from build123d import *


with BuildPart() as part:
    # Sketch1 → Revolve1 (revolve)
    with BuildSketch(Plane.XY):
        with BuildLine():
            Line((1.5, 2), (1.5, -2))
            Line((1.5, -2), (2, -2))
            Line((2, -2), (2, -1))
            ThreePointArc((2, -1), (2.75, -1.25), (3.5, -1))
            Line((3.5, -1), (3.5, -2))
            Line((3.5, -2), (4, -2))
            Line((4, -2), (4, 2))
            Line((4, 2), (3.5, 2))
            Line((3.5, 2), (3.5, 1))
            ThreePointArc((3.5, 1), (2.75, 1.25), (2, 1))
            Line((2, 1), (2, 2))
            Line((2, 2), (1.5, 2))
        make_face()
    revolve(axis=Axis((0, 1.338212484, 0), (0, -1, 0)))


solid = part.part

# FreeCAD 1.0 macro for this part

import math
import FreeCAD as App
import Part
import Sketcher

V = App.Vector
Q = App.Units.Quantity

doc = App.newDocument("Part")
params = doc.addObject("Spreadsheet::Sheet", "Params")
for row, (alias, value) in enumerate([
    ("sketch1_height", "4 mm"),
    ("sketch1_height2", "1 mm"),
    ("sketch1_radius", "1.25 mm"),
    ("sketch1_width", "0.5 mm"),
    ("revolution_angle", "360 deg"),
], start=1):
    params.set(f"A{row}", alias)
    params.set(f"B{row}", "=" + value)
    params.setAlias(f"B{row}", alias)

body = doc.addObject("PartDesign::Body", "Body")

# Sketch on XY plane
sketch1 = body.newObject("Sketcher::SketchObject", "Sketch")
sketch1.AttachmentSupport = (doc.getObject("XY_Plane"), [""])
sketch1.MapMode = "FlatFace"
sketch1.addGeometry(Part.LineSegment(V(1.5, 2, 0), V(1.5, -2, 0)), False)
sketch1.addGeometry(Part.LineSegment(V(1.5, -2, 0), V(2, -2, 0)), False)
sketch1.addGeometry(Part.LineSegment(V(2, -2, 0), V(2, -1, 0)), False)
sketch1.addGeometry(Part.ArcOfCircle(Part.Circle(V(2.75, 0, 0), V(0, 0, 1), 1.25), math.radians(-126.869898), math.radians(-53.130102)), False)
sketch1.addGeometry(Part.LineSegment(V(3.5, -1, 0), V(3.5, -2, 0)), False)
sketch1.addGeometry(Part.LineSegment(V(3.5, -2, 0), V(4, -2, 0)), False)
sketch1.addGeometry(Part.LineSegment(V(4, -2, 0), V(4, 2, 0)), False)
sketch1.addGeometry(Part.LineSegment(V(4, 2, 0), V(3.5, 2, 0)), False)
sketch1.addGeometry(Part.LineSegment(V(3.5, 2, 0), V(3.5, 1, 0)), False)
sketch1.addGeometry(Part.ArcOfCircle(Part.Circle(V(2.75, 0, 0), V(0, 0, 1), 1.25), math.radians(53.130102), math.radians(126.869898)), False)
sketch1.addGeometry(Part.LineSegment(V(2, 1, 0), V(2, 2, 0)), False)
sketch1.addGeometry(Part.LineSegment(V(2, 2, 0), V(1.5, 2, 0)), False)
sketch1.addConstraint(Sketcher.Constraint("Coincident", 0, 2, 1, 1))
sketch1.addConstraint(Sketcher.Constraint("Coincident", 1, 2, 2, 1))
sketch1.addConstraint(Sketcher.Constraint("Coincident", 2, 2, 3, 1))
sketch1.addConstraint(Sketcher.Constraint("Coincident", 3, 2, 4, 1))
sketch1.addConstraint(Sketcher.Constraint("Coincident", 4, 2, 5, 1))
sketch1.addConstraint(Sketcher.Constraint("Coincident", 5, 2, 6, 1))
sketch1.addConstraint(Sketcher.Constraint("Coincident", 6, 2, 7, 1))
sketch1.addConstraint(Sketcher.Constraint("Coincident", 7, 2, 8, 1))
sketch1.addConstraint(Sketcher.Constraint("Coincident", 8, 2, 9, 1))
sketch1.addConstraint(Sketcher.Constraint("Coincident", 9, 2, 10, 1))
sketch1.addConstraint(Sketcher.Constraint("Coincident", 10, 2, 11, 1))
sketch1.addConstraint(Sketcher.Constraint("Coincident", 11, 2, 0, 1))
sketch1.addConstraint(Sketcher.Constraint("Vertical", 0))
sketch1.addConstraint(Sketcher.Constraint("Horizontal", 1))
sketch1.addConstraint(Sketcher.Constraint("Vertical", 2))
sketch1.addConstraint(Sketcher.Constraint("Vertical", 4))
sketch1.addConstraint(Sketcher.Constraint("Horizontal", 5))
sketch1.addConstraint(Sketcher.Constraint("Vertical", 6))
sketch1.addConstraint(Sketcher.Constraint("Horizontal", 7))
sketch1.addConstraint(Sketcher.Constraint("Vertical", 8))
sketch1.addConstraint(Sketcher.Constraint("Vertical", 10))
sketch1.addConstraint(Sketcher.Constraint("Horizontal", 11))
sketch1.addConstraint(Sketcher.Constraint("Coincident", 9, 3, 3, 3))
sketch1.addConstraint(Sketcher.Constraint("Equal", 3, 9))
sketch1.addConstraint(Sketcher.Constraint("Symmetric", 4, 2, 7, 2, -1))
sketch1.addConstraint(Sketcher.Constraint("Symmetric", 2, 2, 9, 2, -1))
sketch1.addConstraint(Sketcher.Constraint("Horizontal", 2, 2, 3, 2))
sketch1.addConstraint(Sketcher.Constraint("Horizontal", 1, 2, 4, 2))
sketch1.addConstraint(Sketcher.Constraint("Horizontal", 7, 2, 10, 2))
sketch1.addConstraint(Sketcher.Constraint("Equal", 1, 5))
sketch1.addConstraint(Sketcher.Constraint("DistanceY", 0, 2, 0, 1, Q("4 mm")))
sketch1.addConstraint(Sketcher.Constraint("DistanceY", 2, 1, 2, 2, Q("1 mm")))
sketch1.addConstraint(Sketcher.Constraint("Radius", 3, Q("1.25 mm")))
sketch1.addConstraint(Sketcher.Constraint("DistanceX", 1, 1, 1, 2, Q("0.5 mm")))
sketch1.addConstraint(Sketcher.Constraint("DistanceX", -1, 1, 1, 2, Q("2 mm")))
sketch1.setExpression("Constraints[30]", "Params.sketch1_height")
sketch1.setExpression("Constraints[31]", "Params.sketch1_height2")
sketch1.setExpression("Constraints[32]", "Params.sketch1_radius")
sketch1.setExpression("Constraints[33]", "Params.sketch1_width")
revolution = body.newObject("PartDesign::Revolution", "Revolution")
revolution.Profile = sketch1
revolution.ReferenceAxis = (sketch1, ["V_Axis"])
revolution.setExpression("Angle", "Params.revolution_angle")

doc.recompute()
